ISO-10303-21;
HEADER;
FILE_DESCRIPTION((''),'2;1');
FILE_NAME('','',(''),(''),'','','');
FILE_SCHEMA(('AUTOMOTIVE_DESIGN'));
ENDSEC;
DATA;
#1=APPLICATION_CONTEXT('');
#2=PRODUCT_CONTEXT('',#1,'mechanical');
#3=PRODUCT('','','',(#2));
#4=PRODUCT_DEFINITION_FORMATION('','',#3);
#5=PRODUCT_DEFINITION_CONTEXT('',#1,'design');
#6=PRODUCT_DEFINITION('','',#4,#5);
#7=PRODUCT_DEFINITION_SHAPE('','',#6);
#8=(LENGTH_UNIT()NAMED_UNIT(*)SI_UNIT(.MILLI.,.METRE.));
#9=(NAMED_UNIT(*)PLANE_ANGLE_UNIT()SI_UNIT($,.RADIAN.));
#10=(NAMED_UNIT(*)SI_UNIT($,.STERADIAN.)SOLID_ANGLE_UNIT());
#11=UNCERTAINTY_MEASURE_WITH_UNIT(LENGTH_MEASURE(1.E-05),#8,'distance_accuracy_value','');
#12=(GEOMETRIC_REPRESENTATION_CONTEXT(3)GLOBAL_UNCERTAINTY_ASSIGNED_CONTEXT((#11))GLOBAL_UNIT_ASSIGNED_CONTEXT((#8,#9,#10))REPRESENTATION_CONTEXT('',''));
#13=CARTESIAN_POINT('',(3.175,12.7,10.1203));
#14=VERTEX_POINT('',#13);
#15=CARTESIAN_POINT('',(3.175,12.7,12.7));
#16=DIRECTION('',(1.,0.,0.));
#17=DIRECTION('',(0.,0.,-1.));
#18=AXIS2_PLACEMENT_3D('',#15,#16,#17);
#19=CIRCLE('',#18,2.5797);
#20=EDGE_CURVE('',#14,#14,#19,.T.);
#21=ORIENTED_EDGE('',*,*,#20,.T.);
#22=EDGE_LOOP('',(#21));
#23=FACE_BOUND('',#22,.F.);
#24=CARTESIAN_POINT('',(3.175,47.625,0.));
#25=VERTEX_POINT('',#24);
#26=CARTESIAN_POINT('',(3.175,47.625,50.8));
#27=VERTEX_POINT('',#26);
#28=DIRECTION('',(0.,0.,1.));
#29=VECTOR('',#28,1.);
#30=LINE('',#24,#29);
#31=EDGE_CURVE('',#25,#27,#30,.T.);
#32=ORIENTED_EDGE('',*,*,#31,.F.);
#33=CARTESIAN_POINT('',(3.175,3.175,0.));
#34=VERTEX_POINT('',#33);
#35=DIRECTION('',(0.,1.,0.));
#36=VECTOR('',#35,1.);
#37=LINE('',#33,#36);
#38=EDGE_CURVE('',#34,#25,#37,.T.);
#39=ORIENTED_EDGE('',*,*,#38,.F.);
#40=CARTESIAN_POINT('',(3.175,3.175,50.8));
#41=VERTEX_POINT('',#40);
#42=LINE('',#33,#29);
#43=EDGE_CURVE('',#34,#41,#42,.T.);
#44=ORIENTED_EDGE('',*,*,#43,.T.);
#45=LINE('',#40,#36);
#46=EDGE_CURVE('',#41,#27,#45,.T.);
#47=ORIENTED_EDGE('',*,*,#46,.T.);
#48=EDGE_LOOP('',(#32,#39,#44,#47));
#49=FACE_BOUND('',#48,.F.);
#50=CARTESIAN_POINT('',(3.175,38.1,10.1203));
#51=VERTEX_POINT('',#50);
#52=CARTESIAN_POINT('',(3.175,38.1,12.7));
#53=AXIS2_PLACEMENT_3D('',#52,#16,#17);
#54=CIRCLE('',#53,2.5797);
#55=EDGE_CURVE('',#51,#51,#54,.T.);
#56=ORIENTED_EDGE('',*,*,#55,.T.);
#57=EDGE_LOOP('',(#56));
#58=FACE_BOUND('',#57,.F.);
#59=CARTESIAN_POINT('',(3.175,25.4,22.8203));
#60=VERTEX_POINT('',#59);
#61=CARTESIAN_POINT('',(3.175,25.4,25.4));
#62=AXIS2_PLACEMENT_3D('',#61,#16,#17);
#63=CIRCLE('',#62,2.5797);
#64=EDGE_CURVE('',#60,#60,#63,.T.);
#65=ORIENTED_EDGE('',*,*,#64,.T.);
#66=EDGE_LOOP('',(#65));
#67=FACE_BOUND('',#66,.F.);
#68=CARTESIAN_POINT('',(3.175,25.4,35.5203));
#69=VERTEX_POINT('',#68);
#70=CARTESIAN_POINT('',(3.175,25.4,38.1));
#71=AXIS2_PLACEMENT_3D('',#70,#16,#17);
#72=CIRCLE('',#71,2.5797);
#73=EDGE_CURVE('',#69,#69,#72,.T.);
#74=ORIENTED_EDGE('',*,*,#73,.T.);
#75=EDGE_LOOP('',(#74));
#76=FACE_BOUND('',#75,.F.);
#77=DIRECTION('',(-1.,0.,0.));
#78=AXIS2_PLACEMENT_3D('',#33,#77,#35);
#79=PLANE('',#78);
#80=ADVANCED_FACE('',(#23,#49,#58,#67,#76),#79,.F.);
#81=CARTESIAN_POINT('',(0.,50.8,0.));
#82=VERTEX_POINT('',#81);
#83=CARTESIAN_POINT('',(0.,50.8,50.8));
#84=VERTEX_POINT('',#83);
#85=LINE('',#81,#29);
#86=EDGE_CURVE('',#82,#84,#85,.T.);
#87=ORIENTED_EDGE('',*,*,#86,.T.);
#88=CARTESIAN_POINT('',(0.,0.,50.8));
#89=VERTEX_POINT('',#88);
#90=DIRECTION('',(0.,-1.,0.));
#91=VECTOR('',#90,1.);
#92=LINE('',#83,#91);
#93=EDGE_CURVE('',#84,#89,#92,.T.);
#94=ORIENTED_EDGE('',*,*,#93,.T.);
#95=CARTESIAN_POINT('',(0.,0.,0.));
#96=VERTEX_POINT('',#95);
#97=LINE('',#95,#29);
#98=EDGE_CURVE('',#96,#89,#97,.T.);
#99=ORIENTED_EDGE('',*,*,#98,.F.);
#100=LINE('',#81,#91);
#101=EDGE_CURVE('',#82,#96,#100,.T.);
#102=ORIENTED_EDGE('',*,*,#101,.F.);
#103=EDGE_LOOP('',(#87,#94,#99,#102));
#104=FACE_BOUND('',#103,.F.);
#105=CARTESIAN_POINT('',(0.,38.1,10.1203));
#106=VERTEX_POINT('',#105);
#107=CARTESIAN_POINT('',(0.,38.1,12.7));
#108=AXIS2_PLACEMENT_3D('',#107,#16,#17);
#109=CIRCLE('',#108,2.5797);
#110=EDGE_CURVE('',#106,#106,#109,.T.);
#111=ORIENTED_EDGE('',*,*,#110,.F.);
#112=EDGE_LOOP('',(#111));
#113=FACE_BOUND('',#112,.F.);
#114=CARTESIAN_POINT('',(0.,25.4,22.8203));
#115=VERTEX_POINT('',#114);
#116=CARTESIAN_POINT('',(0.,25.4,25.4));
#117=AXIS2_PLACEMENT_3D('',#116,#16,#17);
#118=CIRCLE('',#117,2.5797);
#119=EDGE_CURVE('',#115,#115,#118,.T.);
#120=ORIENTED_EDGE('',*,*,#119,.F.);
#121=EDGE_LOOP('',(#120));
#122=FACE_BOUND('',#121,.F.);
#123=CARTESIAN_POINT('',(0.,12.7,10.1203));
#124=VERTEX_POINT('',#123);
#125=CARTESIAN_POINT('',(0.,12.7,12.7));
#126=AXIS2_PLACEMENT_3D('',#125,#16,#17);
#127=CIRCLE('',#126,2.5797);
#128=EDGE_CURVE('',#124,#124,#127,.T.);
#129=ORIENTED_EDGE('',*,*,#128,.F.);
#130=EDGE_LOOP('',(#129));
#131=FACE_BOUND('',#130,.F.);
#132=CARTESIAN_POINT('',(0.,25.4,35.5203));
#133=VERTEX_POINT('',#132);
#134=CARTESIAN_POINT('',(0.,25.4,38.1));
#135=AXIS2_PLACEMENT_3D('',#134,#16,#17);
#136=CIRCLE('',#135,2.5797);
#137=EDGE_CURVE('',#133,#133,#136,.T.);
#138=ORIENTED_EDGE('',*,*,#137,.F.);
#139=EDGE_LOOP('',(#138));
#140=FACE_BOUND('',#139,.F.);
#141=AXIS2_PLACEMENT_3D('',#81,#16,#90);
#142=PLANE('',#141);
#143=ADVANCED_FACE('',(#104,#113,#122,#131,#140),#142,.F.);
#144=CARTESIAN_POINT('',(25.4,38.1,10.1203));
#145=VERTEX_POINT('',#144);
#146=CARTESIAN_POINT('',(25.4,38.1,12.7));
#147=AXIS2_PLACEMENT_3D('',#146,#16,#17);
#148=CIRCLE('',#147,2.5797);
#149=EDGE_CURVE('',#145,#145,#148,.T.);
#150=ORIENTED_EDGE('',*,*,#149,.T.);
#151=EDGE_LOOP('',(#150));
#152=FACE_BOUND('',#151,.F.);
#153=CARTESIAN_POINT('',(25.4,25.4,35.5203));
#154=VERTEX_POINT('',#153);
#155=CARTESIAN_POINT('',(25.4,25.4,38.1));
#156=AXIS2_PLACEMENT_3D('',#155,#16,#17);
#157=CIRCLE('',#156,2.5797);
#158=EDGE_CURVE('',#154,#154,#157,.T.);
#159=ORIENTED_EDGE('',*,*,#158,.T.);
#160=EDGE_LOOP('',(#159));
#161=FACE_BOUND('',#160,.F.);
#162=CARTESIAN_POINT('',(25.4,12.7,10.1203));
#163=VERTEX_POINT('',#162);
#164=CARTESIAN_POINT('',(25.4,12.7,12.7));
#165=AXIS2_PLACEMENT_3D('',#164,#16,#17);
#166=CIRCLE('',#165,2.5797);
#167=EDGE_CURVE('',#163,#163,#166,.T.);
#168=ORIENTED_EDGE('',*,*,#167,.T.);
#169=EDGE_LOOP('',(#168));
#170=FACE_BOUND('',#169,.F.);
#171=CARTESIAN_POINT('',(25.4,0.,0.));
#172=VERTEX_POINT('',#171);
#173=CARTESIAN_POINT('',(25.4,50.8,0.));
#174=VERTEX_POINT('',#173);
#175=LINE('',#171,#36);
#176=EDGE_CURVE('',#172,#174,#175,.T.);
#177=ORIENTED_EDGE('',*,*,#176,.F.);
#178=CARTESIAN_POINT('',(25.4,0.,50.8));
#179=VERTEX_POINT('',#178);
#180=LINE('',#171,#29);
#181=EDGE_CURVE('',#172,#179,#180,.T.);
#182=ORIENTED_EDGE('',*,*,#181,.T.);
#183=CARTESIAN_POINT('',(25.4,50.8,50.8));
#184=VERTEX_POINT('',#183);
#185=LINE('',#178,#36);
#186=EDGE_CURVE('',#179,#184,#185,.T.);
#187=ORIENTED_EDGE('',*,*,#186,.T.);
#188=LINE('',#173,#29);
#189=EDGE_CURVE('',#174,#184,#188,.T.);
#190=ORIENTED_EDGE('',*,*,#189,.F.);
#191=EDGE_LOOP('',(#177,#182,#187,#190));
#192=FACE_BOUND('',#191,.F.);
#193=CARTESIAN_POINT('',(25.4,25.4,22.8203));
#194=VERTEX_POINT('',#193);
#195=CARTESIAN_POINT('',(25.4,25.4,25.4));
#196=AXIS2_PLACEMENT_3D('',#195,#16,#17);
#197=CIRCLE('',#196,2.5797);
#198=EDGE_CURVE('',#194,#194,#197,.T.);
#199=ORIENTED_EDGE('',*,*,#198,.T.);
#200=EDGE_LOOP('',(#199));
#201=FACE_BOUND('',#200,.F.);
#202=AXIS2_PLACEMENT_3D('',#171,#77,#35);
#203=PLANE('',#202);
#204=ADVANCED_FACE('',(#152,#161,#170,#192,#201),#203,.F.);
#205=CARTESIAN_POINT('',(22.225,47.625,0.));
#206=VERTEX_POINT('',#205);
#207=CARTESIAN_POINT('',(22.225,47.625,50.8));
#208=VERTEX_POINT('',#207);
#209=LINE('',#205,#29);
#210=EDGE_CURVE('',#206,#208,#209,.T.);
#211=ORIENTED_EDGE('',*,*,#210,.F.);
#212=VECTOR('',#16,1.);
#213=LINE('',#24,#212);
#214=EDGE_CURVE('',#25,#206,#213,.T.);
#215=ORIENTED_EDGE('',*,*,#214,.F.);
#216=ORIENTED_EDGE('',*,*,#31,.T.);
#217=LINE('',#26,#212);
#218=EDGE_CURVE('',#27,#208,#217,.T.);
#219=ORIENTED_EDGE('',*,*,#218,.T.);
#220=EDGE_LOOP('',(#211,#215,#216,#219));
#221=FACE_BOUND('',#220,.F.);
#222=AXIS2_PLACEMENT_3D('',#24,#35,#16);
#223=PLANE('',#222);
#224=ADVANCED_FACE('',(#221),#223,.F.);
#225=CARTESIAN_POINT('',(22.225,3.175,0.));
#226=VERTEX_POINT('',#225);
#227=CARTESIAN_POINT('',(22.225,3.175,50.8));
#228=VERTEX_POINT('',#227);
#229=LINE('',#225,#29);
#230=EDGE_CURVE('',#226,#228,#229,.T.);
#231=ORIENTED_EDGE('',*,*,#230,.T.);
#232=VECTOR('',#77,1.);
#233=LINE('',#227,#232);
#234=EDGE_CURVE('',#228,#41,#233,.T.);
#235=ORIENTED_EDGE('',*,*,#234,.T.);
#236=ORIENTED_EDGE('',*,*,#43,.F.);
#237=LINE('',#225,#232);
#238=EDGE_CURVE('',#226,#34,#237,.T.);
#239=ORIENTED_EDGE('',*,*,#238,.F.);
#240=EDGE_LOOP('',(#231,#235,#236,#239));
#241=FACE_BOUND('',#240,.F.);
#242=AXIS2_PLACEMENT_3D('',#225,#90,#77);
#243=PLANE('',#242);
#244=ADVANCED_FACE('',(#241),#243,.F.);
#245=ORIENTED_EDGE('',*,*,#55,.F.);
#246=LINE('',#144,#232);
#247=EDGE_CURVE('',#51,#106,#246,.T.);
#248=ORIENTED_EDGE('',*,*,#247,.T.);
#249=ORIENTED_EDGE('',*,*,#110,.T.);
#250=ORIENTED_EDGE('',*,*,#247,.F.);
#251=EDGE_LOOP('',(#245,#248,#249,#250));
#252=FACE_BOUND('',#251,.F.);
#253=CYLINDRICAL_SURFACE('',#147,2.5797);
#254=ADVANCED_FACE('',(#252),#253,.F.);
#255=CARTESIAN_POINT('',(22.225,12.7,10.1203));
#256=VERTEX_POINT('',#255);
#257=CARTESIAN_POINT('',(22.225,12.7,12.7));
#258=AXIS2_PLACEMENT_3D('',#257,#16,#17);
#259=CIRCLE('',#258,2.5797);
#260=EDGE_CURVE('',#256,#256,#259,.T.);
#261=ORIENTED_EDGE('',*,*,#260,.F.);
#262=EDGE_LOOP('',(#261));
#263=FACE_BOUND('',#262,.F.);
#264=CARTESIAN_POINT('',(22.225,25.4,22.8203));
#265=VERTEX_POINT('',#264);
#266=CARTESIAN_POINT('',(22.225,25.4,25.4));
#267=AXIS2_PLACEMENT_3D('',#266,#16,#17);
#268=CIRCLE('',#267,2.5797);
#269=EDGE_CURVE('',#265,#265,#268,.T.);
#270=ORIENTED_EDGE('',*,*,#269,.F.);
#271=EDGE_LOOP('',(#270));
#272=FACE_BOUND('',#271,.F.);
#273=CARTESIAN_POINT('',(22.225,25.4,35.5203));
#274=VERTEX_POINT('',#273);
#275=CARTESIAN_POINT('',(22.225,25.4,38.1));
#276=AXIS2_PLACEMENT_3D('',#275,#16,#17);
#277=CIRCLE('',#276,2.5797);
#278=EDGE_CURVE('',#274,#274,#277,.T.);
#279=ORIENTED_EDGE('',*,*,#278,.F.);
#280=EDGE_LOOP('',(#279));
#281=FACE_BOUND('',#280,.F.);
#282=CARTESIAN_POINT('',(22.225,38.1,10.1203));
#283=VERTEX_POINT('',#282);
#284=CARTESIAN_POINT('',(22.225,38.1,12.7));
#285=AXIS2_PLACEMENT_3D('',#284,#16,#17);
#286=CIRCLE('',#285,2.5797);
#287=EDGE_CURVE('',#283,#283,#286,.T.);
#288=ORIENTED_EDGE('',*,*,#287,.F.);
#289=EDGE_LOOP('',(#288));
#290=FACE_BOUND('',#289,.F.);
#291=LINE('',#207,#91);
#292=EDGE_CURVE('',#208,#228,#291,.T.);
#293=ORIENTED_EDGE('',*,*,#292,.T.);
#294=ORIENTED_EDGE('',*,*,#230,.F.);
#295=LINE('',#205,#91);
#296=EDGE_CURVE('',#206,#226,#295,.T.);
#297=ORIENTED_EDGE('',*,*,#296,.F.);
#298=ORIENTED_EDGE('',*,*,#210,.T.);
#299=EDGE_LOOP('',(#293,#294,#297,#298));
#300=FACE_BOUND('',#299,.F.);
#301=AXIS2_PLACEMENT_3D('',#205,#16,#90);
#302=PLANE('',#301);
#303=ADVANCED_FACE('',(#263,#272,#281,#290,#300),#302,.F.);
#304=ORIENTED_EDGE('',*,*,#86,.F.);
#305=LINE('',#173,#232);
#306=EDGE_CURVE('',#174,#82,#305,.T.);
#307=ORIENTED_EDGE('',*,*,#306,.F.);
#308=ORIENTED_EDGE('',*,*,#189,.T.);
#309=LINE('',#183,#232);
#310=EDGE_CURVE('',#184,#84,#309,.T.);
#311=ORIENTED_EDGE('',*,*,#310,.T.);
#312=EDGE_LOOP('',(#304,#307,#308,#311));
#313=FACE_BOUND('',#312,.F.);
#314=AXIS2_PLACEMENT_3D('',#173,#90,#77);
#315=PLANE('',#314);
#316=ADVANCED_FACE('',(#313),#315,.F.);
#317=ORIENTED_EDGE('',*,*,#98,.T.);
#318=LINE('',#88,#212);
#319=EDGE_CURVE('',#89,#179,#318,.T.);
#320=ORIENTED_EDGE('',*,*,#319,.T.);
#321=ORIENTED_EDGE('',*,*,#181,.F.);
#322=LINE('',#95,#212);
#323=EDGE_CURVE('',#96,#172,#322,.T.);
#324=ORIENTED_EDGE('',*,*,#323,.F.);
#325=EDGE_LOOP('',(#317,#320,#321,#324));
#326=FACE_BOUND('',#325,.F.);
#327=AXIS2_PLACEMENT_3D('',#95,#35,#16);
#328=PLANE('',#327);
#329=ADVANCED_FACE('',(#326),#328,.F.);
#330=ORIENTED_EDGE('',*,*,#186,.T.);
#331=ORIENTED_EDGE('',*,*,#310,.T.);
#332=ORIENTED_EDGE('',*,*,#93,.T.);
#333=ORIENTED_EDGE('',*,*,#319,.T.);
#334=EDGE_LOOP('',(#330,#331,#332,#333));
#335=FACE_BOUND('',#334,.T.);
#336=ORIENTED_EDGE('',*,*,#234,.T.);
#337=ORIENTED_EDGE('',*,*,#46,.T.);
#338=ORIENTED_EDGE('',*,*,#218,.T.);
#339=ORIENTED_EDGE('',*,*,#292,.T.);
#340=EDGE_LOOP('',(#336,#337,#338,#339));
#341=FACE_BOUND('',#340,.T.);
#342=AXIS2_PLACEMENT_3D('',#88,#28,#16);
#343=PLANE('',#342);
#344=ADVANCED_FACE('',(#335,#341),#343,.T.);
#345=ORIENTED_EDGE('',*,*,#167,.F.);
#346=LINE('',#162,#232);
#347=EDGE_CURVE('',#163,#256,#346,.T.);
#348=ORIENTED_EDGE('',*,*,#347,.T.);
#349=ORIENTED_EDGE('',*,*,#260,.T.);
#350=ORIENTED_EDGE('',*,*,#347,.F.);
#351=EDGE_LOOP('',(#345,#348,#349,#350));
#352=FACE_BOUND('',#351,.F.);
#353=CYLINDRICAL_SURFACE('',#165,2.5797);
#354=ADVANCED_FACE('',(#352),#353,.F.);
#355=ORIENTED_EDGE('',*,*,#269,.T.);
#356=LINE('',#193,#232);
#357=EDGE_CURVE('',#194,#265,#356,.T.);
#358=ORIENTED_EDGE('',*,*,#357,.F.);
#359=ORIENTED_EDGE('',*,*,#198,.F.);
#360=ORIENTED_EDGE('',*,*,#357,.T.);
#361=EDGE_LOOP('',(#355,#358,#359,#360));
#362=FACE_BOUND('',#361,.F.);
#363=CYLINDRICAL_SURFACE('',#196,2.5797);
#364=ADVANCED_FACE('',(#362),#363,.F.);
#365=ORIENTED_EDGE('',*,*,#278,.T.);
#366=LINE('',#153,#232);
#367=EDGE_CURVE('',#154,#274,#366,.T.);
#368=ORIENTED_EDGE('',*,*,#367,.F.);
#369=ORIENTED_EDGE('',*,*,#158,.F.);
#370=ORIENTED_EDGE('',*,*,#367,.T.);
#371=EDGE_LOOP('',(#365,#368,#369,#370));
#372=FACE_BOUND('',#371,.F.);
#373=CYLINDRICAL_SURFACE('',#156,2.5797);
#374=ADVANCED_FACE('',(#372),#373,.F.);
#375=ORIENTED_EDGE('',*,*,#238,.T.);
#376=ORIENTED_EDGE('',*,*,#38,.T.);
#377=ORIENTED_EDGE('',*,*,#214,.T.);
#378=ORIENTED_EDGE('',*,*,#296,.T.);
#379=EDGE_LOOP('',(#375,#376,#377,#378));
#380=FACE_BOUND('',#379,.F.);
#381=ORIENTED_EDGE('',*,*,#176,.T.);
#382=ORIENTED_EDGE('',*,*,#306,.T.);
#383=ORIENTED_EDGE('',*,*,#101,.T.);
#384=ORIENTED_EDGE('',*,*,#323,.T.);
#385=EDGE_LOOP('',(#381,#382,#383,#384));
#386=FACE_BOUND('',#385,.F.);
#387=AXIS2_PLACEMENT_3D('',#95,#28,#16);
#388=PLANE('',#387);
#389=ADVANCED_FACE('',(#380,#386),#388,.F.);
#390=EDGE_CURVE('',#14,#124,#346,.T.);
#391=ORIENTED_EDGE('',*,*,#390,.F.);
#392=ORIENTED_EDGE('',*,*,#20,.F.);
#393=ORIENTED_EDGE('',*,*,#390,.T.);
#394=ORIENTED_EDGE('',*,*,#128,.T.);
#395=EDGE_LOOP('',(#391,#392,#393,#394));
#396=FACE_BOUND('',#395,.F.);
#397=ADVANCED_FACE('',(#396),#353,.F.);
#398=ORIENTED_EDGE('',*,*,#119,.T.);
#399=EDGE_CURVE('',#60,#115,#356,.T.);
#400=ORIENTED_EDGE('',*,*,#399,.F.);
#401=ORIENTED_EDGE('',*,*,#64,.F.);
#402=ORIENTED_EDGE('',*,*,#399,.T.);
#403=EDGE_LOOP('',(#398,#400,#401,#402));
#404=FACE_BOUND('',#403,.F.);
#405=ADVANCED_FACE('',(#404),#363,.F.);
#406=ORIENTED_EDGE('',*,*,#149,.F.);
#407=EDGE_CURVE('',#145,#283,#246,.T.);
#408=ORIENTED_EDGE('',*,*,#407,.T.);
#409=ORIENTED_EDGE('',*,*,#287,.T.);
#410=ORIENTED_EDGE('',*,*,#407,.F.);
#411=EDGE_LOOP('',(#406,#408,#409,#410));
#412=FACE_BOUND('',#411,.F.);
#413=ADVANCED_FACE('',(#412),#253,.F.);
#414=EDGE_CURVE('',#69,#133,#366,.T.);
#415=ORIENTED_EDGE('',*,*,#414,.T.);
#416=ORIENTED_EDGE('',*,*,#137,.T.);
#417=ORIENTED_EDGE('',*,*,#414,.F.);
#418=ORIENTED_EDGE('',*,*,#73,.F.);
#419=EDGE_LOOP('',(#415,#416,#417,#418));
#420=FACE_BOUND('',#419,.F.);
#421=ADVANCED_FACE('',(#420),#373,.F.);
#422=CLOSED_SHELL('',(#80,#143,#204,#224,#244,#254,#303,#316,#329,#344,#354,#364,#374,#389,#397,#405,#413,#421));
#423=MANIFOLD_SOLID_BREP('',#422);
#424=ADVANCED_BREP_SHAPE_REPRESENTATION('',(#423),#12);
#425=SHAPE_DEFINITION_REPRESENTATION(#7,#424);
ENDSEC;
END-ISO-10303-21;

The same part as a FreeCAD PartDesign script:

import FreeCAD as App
import Part
import Sketcher
from FreeCAD import Vector
Q = App.Units.Quantity

doc = App.newDocument("Part")
params = doc.addObject("Spreadsheet::Sheet", "Params")
for row, (alias, value) in enumerate([
    ("sketch1_width", "1 in"),
    ("sketch1_height", "2 in"),
    ("pad1_length", "2 in"),
    ("sketch2_diameter", "0.203126 in"),
    ("pocket1_length", "2 in"),
    ("sketch3_diameter", "0.203126 in"),
    ("pocket2_length", "1 in"),
], start=1):
    params.set(f"A{row}", alias)
    params.set(f"B{row}", "=" + value)
    params.setAlias(f"B{row}", alias)

body = doc.addObject("PartDesign::Body", "Body")

# Sketch on XY plane
sketch1 = body.newObject("Sketcher::SketchObject", "Sketch")
sketch1.AttachmentSupport = (doc.getObject("XY_Plane"), [""])
sketch1.MapMode = "FlatFace"
sketch1.addGeometry([
    Part.LineSegment(Vector(0, 51, 0), Vector(0, 0, 0)),  # 0
    Part.LineSegment(Vector(0, 0, 0), Vector(25, 0, 0)),  # 1
    Part.LineSegment(Vector(25, 0, 0), Vector(25, 51, 0)),  # 2
    Part.LineSegment(Vector(25, 51, 0), Vector(0, 51, 0)),  # 3
    Part.LineSegment(Vector(3, 3, 0), Vector(3, 48, 0)),  # 4
    Part.LineSegment(Vector(3, 48, 0), Vector(22, 48, 0)),  # 5
    Part.LineSegment(Vector(22, 48, 0), Vector(22, 3, 0)),  # 6
    Part.LineSegment(Vector(22, 3, 0), Vector(3, 3, 0)),  # 7
], False)
sketch1.addConstraint([
    Sketcher.Constraint("Coincident", 0, 2, 1, 1),
    Sketcher.Constraint("Coincident", 1, 2, 2, 1),
    Sketcher.Constraint("Coincident", 2, 2, 3, 1),
    Sketcher.Constraint("Coincident", 3, 2, 0, 1),
    Sketcher.Constraint("Coincident", 4, 2, 5, 1),
    Sketcher.Constraint("Coincident", 5, 2, 6, 1),
    Sketcher.Constraint("Coincident", 6, 2, 7, 1),
    Sketcher.Constraint("Coincident", 7, 2, 4, 1),
    Sketcher.Constraint("Vertical", 0),
    Sketcher.Constraint("Horizontal", 1),
    Sketcher.Constraint("Vertical", 2),
    Sketcher.Constraint("Horizontal", 3),
    Sketcher.Constraint("Vertical", 4),
    Sketcher.Constraint("Horizontal", 5),
    Sketcher.Constraint("Vertical", 6),
    Sketcher.Constraint("Horizontal", 7),
    Sketcher.Constraint("Coincident", 0, 2, -1, 1),
    Sketcher.Constraint("DistanceX", 1, 1, 1, 2, Q("1 in")),
    Sketcher.Constraint("DistanceY", 0, 2, 0, 1, Q("2 in")),
    Sketcher.Constraint("DistanceX", -1, 1, 4, 2, Q("0.125 in")),
    Sketcher.Constraint("DistanceY", -1, 1, 6, 2, Q("0.125 in")),
    Sketcher.Constraint("DistanceY", 4, 2, 3, 2, Q("0.125 in")),
    Sketcher.Constraint("DistanceX", 5, 2, 2, 2, Q("0.125 in")),
])
sketch1.setExpression("Constraints[17]", "Params.sketch1_width")
sketch1.setExpression("Constraints[18]", "Params.sketch1_height")
pad1 = body.newObject("PartDesign::Pad", "Pad")
pad1.Profile = sketch1
pad1.setExpression("Length", "Params.pad1_length")

# Sketch on YZ plane
sketch2 = body.newObject("Sketcher::SketchObject", "Sketch001")
sketch2.AttachmentSupport = (doc.getObject("YZ_Plane"), [""])
sketch2.MapMode = "FlatFace"
sketch2.AttachmentOffset = App.Placement(Vector(0, 0, 1 * 25.4), App.Rotation())
sketch2.addGeometry([
    Part.Circle(Vector(12.7, 12.7, 0), Vector(0, 0, 1), 2.6),
    Part.Circle(Vector(38.1, 12.7, 0), Vector(0, 0, 1), 2.6),
], False)
sketch2.addConstraint([
    Sketcher.Constraint("Equal", 0, 1),
    Sketcher.Constraint("Horizontal", 0, 3, 1, 3),
    Sketcher.Constraint("Diameter", 0, Q("0.203126 in")),
    Sketcher.Constraint("DistanceX", 0, 3, 1, 3, Q("1 in")),
    Sketcher.Constraint("DistanceX", -1, 1, 0, 3, Q("0.5 in")),
    Sketcher.Constraint("DistanceY", -1, 1, 0, 3, Q("0.5 in")),
])
sketch2.setExpression("Constraints[2]", "Params.sketch2_diameter")
pocket1 = body.newObject("PartDesign::Pocket", "Pocket")
pocket1.Profile = sketch2
pocket1.setExpression("Length", "Params.pocket1_length")

# Sketch on YZ plane
sketch3 = body.newObject("Sketcher::SketchObject", "Sketch002")
sketch3.AttachmentSupport = (doc.getObject("YZ_Plane"), [""])
sketch3.MapMode = "FlatFace"
sketch3.AttachmentOffset = App.Placement(Vector(0, 0, 1 * 25.4), App.Rotation())
sketch3.addGeometry([
    Part.Circle(Vector(25.4, 38.1, 0), Vector(0, 0, 1), 2.6),
    Part.Circle(Vector(25.4, 25.4, 0), Vector(0, 0, 1), 2.6),
], False)
sketch3.addConstraint([
    Sketcher.Constraint("Equal", 0, 1),
    Sketcher.Constraint("Vertical", 0, 3, 1, 3),
    Sketcher.Constraint("Diameter", 0, Q("0.203126 in")),
    Sketcher.Constraint("DistanceY", 1, 3, 0, 3, Q("0.5 in")),
    Sketcher.Constraint("DistanceX", -1, 1, 0, 3, Q("1 in")),
    Sketcher.Constraint("DistanceY", -1, 1, 1, 3, Q("1 in")),
])
sketch3.setExpression("Constraints[2]", "Params.sketch3_diameter")
pocket2 = body.newObject("PartDesign::Pocket", "Pocket001")
pocket2.Profile = sketch3
pocket2.setExpression("Length", "Params.pocket2_length")

doc.recompute()
